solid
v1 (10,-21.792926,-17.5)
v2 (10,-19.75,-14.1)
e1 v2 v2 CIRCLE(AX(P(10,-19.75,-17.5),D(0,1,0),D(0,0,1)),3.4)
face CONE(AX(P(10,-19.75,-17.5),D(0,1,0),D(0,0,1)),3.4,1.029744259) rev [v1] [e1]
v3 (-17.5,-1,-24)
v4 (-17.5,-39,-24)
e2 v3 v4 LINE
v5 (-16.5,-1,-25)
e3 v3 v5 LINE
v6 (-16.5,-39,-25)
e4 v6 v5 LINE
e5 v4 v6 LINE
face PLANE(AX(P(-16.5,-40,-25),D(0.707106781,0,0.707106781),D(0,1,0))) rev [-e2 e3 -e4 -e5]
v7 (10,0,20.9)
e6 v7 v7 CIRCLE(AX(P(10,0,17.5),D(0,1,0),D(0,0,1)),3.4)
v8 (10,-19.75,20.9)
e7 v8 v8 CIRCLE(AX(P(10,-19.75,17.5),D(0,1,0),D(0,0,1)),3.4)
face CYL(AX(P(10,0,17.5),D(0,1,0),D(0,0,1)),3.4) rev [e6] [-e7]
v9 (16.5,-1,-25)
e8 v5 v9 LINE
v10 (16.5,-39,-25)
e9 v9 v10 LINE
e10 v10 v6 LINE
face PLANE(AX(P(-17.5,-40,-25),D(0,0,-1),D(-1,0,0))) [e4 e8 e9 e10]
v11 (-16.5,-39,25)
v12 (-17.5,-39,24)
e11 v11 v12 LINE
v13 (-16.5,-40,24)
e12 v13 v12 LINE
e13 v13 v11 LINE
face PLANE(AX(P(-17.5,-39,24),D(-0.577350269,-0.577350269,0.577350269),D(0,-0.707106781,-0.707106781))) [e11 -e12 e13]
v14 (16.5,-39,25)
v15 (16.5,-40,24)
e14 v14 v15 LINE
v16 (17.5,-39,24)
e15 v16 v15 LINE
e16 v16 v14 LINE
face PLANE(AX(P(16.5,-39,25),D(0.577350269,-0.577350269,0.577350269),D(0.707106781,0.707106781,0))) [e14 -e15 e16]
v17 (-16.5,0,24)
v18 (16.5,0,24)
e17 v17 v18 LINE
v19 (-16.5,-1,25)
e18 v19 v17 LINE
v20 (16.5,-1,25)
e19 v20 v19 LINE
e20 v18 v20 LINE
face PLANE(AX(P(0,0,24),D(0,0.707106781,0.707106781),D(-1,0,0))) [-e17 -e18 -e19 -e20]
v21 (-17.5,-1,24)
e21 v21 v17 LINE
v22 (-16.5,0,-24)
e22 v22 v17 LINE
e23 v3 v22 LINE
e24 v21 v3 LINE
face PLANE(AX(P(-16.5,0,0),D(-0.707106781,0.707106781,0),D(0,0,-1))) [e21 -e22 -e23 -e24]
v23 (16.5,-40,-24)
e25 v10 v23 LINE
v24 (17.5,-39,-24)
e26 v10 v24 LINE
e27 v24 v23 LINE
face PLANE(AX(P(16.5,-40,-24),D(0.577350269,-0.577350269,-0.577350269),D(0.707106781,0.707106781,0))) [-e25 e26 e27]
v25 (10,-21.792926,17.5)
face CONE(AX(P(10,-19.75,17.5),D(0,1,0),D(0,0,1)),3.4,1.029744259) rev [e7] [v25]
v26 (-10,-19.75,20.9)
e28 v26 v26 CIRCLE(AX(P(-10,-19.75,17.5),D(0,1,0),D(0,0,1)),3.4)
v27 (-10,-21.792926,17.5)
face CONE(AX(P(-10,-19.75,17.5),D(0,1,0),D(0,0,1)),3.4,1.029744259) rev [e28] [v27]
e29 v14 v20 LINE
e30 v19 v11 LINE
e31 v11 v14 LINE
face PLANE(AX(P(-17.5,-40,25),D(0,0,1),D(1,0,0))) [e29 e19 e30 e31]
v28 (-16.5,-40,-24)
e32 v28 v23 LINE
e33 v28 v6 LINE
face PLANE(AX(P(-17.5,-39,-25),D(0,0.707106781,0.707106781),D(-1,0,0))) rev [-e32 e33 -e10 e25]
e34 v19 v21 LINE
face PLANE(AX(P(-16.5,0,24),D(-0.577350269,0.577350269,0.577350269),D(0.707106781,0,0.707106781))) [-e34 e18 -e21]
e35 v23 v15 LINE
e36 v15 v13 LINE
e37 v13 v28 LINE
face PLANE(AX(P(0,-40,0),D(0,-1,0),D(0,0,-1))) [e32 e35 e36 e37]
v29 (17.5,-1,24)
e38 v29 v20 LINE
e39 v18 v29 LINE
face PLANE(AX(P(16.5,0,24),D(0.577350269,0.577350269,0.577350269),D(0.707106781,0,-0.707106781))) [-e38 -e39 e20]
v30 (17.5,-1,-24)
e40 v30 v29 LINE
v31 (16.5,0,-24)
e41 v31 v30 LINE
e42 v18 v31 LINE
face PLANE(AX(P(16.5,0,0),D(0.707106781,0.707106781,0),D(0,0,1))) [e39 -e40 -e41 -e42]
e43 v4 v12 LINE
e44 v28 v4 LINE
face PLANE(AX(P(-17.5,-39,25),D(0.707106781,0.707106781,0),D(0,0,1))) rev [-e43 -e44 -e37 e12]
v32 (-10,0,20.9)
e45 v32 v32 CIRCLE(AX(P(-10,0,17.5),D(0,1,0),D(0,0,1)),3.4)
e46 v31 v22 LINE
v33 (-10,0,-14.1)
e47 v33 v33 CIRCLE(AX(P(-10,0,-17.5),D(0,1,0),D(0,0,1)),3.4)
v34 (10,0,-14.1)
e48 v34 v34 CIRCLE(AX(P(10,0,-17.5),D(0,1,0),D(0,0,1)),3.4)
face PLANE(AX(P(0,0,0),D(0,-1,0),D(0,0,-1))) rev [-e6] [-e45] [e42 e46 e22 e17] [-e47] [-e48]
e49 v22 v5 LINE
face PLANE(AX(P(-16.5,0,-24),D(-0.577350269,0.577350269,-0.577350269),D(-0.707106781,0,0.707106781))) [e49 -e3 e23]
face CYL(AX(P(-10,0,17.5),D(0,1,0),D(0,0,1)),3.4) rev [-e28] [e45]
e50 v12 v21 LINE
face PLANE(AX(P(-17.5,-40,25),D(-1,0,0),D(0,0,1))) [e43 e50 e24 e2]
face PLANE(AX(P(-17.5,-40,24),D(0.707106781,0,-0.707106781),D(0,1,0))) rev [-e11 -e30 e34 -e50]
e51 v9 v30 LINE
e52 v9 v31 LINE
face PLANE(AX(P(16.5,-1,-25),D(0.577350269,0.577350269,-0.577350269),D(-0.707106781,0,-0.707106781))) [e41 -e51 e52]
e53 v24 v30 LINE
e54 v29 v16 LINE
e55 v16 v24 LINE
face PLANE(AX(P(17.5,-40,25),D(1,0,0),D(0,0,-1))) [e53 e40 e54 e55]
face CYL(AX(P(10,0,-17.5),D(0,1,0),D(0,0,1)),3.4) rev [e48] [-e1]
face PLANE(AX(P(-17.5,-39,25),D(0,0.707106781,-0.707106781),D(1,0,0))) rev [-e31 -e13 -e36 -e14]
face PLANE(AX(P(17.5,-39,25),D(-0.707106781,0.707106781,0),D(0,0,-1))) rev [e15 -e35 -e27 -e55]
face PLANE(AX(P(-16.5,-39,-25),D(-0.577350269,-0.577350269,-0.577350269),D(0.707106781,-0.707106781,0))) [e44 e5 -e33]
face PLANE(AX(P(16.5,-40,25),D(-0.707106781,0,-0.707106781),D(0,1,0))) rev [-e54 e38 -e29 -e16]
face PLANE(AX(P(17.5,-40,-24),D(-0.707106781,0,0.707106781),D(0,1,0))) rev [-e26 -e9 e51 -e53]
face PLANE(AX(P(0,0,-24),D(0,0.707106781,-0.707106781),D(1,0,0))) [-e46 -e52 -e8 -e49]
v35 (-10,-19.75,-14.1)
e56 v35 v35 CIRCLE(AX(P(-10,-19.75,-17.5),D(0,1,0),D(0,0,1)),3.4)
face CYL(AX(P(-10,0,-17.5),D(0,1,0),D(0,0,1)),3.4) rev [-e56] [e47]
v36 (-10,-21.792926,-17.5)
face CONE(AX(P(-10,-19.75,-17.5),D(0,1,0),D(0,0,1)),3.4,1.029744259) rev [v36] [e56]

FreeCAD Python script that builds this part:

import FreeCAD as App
import Part
import Sketcher

V = App.Vector
Q = App.Units.Quantity


def add_polygon(sketch, points):
    """Adds a closed chain of lines whose ends are joined by coincident constraints."""
    first, n = sketch.GeometryCount, len(points)
    for a, b in zip(points, points[1:] + points[:1]):
        sketch.addGeometry(Part.LineSegment(App.Vector(*a, 0), App.Vector(*b, 0)), False)
    for i in range(n):
        sketch.addConstraint(Sketcher.Constraint("Coincident", first + i, 2, first + (i + 1) % n, 1))

doc = App.newDocument("Part")
body = doc.addObject("PartDesign::Body", "Body")

sketch1 = body.newObject("Sketcher::SketchObject", "Sketch")
sketch1.AttachmentSupport = (doc.getObject("XZ_Plane"), [""])
sketch1.MapMode = "FlatFace"
add_polygon(sketch1, [(-17.5, -25), (-17.5, 25), (17.5, 25), (17.5, -25)])
sketch1.addConstraint([
    Sketcher.Constraint("Vertical", 0),
    Sketcher.Constraint("Horizontal", 1),
    Sketcher.Constraint("Vertical", 2),
    Sketcher.Constraint("Horizontal", 3),
    Sketcher.Constraint("Symmetric", 0, 2, 2, 2, -1, 1),
    Sketcher.Constraint("DistanceX", 1, 1, 1, 2, Q("35 mm")),
    Sketcher.Constraint("DistanceY", 0, 1, 0, 2, Q("50 mm")),
])
pad1 = body.newObject("PartDesign::Pad", "Pad")
pad1.Profile = sketch1
pad1.Length = 40
doc.recompute()

chamfer = body.newObject("PartDesign::Chamfer", "Chamfer")
chamfer.Base = (pad1, ["Edge1"])
chamfer.UseAllEdges = True
chamfer.Size = 1

sketch2 = body.newObject("Sketcher::SketchObject", "Sketch001")
sketch2.AttachmentSupport = (doc.getObject("YZ_Plane"), [""])
sketch2.MapMode = "FlatFace"
sketch2.AttachmentOffset = App.Placement(V(0, 0, -10), App.Rotation())
add_polygon(sketch2, [(-21.792926, -17.5), (0, -17.5), (0, -14.1), (-19.75, -14.1)])
sketch2.addGeometry(Part.LineSegment(V(0, -17.5, 0), V(-21.792926, -17.5, 0)), True)
sketch2.addConstraint([
    Sketcher.Constraint("Horizontal", 0),
    Sketcher.Constraint("Vertical", 1),
    Sketcher.Constraint("Horizontal", 2),
    Sketcher.Constraint("Horizontal", 4),
    Sketcher.Constraint("Coincident", 4, 1, 0, 2),
    Sketcher.Constraint("PointOnObject", 0, 2, -2),
    Sketcher.Constraint("Equal", 0, 4),
    Sketcher.Constraint("Angle", 3, Q("-121 deg")),
    Sketcher.Constraint("DistanceY", 1, 1, 1, 2, Q("3.4 mm")),
    Sketcher.Constraint("DistanceX", 2, 2, 2, 1, Q("19.75 mm")),
    Sketcher.Constraint("DistanceY", 0, 2, -1, 1, Q("17.5 mm")),
])
groove = body.newObject("PartDesign::Groove", "Groove")
groove.Profile = sketch2
groove.ReferenceAxis = (sketch2, ["Axis0"])
groove.Angle = 360
doc.recompute()

datumline = body.newObject("PartDesign::Line", "DatumLine")
datumline.Placement = App.Placement(V(0, 0, 0), App.Rotation(V(0, 0, 1), V(0.496138938, 0, 0.868243142)))
linearpattern = body.newObject("PartDesign::LinearPattern", "LinearPattern")
linearpattern.Originals = [groove]
linearpattern.Direction = (datumline, [""])
linearpattern.Mode = "offset"
linearpattern.Offset = 40.311289
linearpattern.Occurrences = 2
body.Tip = linearpattern
doc.recompute()

mirrored = body.newObject("PartDesign::Mirrored", "Mirrored")
mirrored.Originals = [groove]
mirrored.MirrorPlane = (doc.getObject("XY_Plane"), [""])
body.Tip = mirrored

sketch3 = body.newObject("Sketcher::SketchObject", "Sketch002")
sketch3.AttachmentSupport = (doc.getObject("YZ_Plane"), [""])
sketch3.MapMode = "FlatFace"
sketch3.AttachmentOffset = App.Placement(V(0, 0, 10), App.Rotation())
add_polygon(sketch3, [(0, -17.5), (-21.792926, -17.5), (-19.75, -20.9), (0, -20.9)])
sketch3.addGeometry(Part.LineSegment(V(-21.792926, -17.5, 0), V(0, -17.5, 0)), True)
sketch3.addConstraint([
    Sketcher.Constraint("Horizontal", 0),
    Sketcher.Constraint("Horizontal", 2),
    Sketcher.Constraint("Vertical", 3),
    Sketcher.Constraint("Horizontal", 4),
    Sketcher.Constraint("Coincident", 4, 1, 0, 2),
    Sketcher.Constraint("PointOnObject", 2, 2, -2),
    Sketcher.Constraint("PointOnObject", 4, 2, -2),
    Sketcher.Constraint("Angle", 1, Q("-59 deg")),
    Sketcher.Constraint("DistanceY", 3, 1, 3, 2, Q("3.4 mm")),
    Sketcher.Constraint("DistanceX", 2, 1, 2, 2, Q("19.75 mm")),
    Sketcher.Constraint("DistanceY", 0, 2, -1, 1, Q("17.5 mm")),
])
groove2 = body.newObject("PartDesign::Groove", "Groove001")
groove2.Profile = sketch3
groove2.ReferenceAxis = (sketch3, ["Axis0"])
groove2.Angle = 360

doc.recompute()
